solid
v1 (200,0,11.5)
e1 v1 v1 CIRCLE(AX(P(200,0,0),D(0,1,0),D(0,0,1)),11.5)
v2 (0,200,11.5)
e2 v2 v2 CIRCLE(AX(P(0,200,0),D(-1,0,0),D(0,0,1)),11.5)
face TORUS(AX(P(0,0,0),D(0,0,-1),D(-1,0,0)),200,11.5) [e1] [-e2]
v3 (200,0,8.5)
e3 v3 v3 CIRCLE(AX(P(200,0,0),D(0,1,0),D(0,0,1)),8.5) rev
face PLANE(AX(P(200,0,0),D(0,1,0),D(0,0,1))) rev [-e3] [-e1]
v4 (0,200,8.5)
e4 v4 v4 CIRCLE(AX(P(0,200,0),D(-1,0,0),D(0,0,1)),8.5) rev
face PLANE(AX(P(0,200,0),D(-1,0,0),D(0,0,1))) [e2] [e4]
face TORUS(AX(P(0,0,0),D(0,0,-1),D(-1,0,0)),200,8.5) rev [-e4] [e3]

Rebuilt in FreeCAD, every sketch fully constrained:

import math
import FreeCAD as App
import Part
import Sketcher

V = App.Vector
Q = App.Units.Quantity

doc = App.newDocument("Part")
params = doc.addObject("Spreadsheet::Sheet", "Params")
for row, (alias, value) in enumerate([
    ("sketch1_diameter", "23 mm"),
    ("sketch1_diameter2", "17 mm"),
    ("sketch2_radius", "200 mm"),
], start=1):
    params.set(f"A{row}", alias)
    params.set(f"B{row}", "=" + value)
    params.setAlias(f"B{row}", alias)

body = doc.addObject("PartDesign::Body", "Body")

# Sketch on XZ plane
sketch1 = doc.addObject("Sketcher::SketchObject", "Sketch")
body.addObject(sketch1)
sketch1.AttachmentSupport = (doc.XZ_Plane, [""])
sketch1.MapMode = "FlatFace"
sketch1.addGeometry(Part.Circle(V(200, 0, 0), V(0, 0, 1), 11.5), False)
sketch1.addGeometry(Part.Circle(V(200, 0, 0), V(0, 0, 1), 8.5), False)
sketch1.addConstraint(Sketcher.Constraint("Coincident", 1, 3, 0, 3))
sketch1.addConstraint(Sketcher.Constraint("PointOnObject", 0, 3, -1))
sketch1.addConstraint(Sketcher.Constraint("Diameter", 0, Q("23 mm")))
sketch1.addConstraint(Sketcher.Constraint("Diameter", 1, Q("17 mm")))
sketch1.addConstraint(Sketcher.Constraint("DistanceX", -1, 1, 0, 3, Q("200 mm")))
sketch1.setExpression("Constraints[2]", "Params.sketch1_diameter")
sketch1.setExpression("Constraints[3]", "Params.sketch1_diameter2")

# Sketch on XY plane
sketch2 = doc.addObject("Sketcher::SketchObject", "Sketch001")
body.addObject(sketch2)
sketch2.AttachmentSupport = (doc.XY_Plane, [""])
sketch2.MapMode = "FlatFace"
sketch2.addGeometry(Part.ArcOfCircle(Part.Circle(V(0, 0, 0), V(0, 0, 1), 200), math.radians(0), math.radians(90)), False)
sketch2.addConstraint(Sketcher.Constraint("Coincident", 0, 3, -1, 1))
sketch2.addConstraint(Sketcher.Constraint("PointOnObject", 0, 1, -1))
sketch2.addConstraint(Sketcher.Constraint("PointOnObject", 0, 2, -2))
sketch2.addConstraint(Sketcher.Constraint("Radius", 0, Q("200 mm")))
sketch2.setExpression("Constraints[3]", "Params.sketch2_radius")
doc.recompute()

additivepipe = doc.addObject("PartDesign::AdditivePipe", "AdditivePipe")
body.addObject(additivepipe)
additivepipe.Profile = sketch1
additivepipe.Spine = (sketch2, ["Edge1"])

doc.recompute()
